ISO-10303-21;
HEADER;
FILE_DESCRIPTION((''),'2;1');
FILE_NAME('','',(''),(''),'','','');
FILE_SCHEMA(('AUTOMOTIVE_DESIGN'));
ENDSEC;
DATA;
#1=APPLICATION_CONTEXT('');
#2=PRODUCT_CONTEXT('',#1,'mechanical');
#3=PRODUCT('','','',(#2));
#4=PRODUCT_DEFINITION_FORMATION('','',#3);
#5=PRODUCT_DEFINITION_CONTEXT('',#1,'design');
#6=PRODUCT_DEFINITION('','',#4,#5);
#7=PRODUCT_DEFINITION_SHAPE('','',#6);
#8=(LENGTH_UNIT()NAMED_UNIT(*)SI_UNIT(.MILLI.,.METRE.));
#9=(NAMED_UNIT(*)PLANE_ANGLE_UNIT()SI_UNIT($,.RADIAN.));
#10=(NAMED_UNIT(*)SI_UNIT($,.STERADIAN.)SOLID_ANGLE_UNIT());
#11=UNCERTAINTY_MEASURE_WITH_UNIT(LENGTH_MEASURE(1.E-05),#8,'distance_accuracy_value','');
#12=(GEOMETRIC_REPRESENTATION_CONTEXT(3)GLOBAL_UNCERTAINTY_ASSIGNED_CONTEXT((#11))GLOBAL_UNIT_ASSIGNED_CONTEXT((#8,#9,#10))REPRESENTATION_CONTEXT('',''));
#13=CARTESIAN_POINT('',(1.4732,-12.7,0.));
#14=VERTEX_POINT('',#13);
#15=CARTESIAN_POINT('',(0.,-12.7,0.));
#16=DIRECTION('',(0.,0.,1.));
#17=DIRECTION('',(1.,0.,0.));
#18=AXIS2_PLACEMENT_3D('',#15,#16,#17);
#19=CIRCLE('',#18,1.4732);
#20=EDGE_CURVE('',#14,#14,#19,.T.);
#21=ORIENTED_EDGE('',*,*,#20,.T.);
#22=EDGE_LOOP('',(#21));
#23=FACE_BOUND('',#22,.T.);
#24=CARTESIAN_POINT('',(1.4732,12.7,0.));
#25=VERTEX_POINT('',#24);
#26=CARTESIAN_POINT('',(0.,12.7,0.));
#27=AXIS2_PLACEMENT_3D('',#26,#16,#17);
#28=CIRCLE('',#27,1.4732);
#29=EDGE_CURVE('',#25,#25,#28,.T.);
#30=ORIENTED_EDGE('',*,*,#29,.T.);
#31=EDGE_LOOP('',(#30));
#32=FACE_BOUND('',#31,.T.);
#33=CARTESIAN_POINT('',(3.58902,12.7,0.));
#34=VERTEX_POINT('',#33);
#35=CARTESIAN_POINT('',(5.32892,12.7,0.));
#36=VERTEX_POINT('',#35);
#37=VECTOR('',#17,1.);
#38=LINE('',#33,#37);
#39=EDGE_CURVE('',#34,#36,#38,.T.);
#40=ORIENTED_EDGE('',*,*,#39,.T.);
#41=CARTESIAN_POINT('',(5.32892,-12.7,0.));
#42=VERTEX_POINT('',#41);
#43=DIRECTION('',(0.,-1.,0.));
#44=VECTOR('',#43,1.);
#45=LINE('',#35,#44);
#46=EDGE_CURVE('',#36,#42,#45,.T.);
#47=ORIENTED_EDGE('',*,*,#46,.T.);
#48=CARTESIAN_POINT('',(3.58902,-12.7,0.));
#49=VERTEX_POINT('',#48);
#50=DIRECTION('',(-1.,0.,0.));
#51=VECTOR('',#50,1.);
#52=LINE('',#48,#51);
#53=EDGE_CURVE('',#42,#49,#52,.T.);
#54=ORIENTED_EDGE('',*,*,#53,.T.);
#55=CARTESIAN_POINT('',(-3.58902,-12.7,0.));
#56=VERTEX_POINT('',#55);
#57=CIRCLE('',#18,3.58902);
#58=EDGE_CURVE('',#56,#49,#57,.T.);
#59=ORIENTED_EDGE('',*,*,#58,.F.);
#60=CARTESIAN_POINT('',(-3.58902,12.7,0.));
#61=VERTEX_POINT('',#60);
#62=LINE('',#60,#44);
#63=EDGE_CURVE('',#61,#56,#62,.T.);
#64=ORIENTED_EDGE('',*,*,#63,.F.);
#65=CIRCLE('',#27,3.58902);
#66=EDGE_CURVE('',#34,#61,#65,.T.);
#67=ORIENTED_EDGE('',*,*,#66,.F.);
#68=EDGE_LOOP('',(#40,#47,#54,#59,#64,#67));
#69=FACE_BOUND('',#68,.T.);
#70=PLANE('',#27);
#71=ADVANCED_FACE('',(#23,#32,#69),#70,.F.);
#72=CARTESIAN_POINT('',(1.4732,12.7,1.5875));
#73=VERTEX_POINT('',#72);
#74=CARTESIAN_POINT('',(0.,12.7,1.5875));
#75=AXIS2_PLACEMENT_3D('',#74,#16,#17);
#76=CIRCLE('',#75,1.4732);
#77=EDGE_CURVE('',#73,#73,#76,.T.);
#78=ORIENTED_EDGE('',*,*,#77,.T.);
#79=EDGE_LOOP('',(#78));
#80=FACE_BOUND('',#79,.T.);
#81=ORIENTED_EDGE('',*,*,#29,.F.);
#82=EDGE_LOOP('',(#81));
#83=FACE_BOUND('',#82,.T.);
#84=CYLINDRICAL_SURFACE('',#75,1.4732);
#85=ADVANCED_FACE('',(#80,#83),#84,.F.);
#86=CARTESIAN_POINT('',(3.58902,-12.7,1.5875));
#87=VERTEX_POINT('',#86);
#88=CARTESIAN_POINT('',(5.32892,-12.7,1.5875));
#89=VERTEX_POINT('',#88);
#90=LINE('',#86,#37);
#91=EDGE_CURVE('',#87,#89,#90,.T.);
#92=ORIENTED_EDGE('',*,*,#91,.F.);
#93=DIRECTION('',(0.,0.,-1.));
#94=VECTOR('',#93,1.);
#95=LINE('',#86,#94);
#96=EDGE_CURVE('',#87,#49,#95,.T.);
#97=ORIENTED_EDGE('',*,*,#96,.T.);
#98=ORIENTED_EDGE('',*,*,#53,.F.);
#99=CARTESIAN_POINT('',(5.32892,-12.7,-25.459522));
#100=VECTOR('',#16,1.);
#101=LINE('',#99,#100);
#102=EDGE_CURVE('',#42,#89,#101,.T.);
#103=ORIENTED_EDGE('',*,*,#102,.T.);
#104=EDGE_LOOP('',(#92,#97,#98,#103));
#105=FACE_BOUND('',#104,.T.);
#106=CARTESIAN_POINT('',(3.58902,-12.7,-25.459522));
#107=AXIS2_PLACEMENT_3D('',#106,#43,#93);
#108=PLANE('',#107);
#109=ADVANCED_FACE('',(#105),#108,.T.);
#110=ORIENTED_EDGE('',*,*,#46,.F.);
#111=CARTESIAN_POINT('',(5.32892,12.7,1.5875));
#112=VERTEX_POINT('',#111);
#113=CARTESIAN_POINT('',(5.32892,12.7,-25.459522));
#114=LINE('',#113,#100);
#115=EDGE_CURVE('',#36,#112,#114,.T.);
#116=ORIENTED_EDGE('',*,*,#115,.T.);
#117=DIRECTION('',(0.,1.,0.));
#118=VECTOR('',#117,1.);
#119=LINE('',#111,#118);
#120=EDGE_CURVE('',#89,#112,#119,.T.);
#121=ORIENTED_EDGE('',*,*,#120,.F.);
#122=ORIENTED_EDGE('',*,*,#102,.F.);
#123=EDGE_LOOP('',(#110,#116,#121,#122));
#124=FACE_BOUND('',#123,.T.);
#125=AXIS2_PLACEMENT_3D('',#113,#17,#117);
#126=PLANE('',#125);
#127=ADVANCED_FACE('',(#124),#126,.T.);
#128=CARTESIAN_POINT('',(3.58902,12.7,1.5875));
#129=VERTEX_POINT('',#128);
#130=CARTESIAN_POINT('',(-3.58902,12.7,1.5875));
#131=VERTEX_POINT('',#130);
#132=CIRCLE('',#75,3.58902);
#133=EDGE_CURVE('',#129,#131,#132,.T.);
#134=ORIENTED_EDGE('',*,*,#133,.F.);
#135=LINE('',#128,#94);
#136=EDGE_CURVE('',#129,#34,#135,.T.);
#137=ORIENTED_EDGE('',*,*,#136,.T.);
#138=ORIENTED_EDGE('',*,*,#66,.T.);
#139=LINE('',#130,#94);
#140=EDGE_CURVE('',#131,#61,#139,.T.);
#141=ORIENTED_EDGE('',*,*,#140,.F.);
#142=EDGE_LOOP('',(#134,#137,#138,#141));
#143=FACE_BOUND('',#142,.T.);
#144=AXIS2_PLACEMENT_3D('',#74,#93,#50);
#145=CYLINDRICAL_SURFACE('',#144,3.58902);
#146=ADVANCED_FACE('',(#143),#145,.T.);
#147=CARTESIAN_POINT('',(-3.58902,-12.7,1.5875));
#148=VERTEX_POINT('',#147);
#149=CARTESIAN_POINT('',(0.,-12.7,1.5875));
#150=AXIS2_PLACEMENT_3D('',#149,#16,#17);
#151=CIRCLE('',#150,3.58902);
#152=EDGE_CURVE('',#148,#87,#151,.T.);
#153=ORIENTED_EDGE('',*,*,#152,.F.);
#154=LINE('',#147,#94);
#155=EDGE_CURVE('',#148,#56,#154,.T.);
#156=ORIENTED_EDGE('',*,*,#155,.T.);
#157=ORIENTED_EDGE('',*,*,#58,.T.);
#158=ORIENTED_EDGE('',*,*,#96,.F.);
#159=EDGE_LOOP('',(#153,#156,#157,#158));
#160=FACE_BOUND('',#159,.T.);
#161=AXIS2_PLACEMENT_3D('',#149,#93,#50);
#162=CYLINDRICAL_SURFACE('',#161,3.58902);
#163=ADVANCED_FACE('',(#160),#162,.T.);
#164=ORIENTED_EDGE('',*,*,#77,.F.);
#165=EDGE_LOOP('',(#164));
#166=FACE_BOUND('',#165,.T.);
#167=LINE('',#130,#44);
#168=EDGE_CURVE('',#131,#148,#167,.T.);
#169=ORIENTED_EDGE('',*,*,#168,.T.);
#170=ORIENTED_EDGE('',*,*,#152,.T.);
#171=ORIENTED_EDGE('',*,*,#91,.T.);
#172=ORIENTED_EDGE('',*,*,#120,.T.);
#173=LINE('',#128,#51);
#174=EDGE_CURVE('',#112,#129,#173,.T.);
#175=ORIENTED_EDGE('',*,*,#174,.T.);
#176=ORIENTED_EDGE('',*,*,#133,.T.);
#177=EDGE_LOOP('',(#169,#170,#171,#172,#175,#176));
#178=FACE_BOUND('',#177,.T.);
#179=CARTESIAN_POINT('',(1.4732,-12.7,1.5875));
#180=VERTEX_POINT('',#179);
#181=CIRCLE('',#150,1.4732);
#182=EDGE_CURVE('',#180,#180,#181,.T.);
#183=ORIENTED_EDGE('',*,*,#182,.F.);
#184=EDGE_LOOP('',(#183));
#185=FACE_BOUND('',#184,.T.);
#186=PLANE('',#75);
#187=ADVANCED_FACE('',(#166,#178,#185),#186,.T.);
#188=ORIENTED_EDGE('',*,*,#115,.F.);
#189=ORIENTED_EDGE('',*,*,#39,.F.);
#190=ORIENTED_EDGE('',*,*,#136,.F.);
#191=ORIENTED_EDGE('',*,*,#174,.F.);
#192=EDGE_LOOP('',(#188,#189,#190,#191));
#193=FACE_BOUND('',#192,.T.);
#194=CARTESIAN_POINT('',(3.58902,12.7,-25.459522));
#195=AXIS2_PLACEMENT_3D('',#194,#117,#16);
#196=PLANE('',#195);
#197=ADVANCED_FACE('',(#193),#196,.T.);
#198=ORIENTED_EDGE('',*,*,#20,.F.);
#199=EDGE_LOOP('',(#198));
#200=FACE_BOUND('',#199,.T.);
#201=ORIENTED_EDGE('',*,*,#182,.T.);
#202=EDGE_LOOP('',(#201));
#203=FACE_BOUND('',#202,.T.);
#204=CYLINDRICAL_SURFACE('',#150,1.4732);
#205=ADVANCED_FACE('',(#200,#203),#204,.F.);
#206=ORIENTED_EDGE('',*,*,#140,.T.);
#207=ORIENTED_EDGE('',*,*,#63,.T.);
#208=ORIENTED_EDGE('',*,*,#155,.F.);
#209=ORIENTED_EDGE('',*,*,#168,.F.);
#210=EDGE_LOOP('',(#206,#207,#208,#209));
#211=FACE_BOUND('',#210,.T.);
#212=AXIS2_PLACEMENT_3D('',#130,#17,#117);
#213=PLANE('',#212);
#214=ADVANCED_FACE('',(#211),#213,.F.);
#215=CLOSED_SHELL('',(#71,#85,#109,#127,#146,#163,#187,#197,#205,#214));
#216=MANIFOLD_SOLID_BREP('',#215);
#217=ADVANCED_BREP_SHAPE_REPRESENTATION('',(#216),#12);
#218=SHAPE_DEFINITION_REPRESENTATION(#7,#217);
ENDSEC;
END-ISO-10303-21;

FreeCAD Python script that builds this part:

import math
import FreeCAD as App
import Part
import Sketcher

V = App.Vector
Q = App.Units.Quantity

doc = App.newDocument("Part")
body = doc.addObject("PartDesign::Body", "Body")

# Sketch on XY plane
sketch1 = body.newObject("Sketcher::SketchObject", "Sketch")
sketch1.AttachmentSupport = (doc.getObject("XY_Plane"), [""])
sketch1.MapMode = "FlatFace"
sketch1.addGeometry([
    Part.LineSegment(V(3.6, -12.7, 0), V(3.6, 12.7, 0)),
    Part.ArcOfCircle(Part.Circle(V(0, 12.7, 0), V(0, 0, 1), 3.6), math.radians(0), math.radians(180)),
    Part.LineSegment(V(-3.6, 12.7, 0), V(-3.6, -12.7, 0)),
    Part.ArcOfCircle(Part.Circle(V(0, -12.7, 0), V(0, 0, 1), 3.6), math.radians(180), math.radians(360)),
], False)
sketch1.addConstraint([
    Sketcher.Constraint("Tangent", 0, 2, 1, 1),
    Sketcher.Constraint("Tangent", 1, 2, 2, 1),
    Sketcher.Constraint("Tangent", 2, 2, 3, 1),
    Sketcher.Constraint("Tangent", 3, 2, 0, 1),
    Sketcher.Constraint("Vertical", 0),
    Sketcher.Constraint("Vertical", 2),
    Sketcher.Constraint("Symmetric", 1, 3, 3, 3, -1, 1),
    Sketcher.Constraint("DistanceY", 0, 1, 0, 2, Q("1 in")),
    Sketcher.Constraint("Radius", 1, Q("0.1413 in")),
])
pad1 = body.newObject("PartDesign::Pad", "Pad")
pad1.Profile = sketch1
pad1.Length = Q("0.0625 in")

# Sketch on XY plane
sketch2 = body.newObject("Sketcher::SketchObject", "Sketch001")
sketch2.AttachmentSupport = (doc.getObject("XY_Plane"), [""])
sketch2.MapMode = "FlatFace"
sketch2.AttachmentOffset = App.Placement(V(0, 0, 0.0625 * 25.4), App.Rotation())
sketch2.addGeometry([
    Part.Circle(V(0, 12.7, 0), V(0, 0, 1), 1.5),
    Part.Circle(V(0, -12.7, 0), V(0, 0, 1), 1.5),
], False)
sketch2.addConstraint([
    Sketcher.Constraint("Equal", 0, 1),
    Sketcher.Constraint("Symmetric", 0, 3, 1, 3, -1, 1),
    Sketcher.Constraint("PointOnObject", 0, 3, -2),
    Sketcher.Constraint("Diameter", 0, Q("0.116 in")),
    Sketcher.Constraint("DistanceY", 1, 3, 0, 3, Q("1 in")),
])
doc.recompute()
hole = body.newObject("PartDesign::Hole", "Hole")
hole.Profile = sketch2
hole.ThreadType = "None"
hole.Diameter = Q("0.116 in")
hole.DepthType = "Dimension"
hole.Depth = Q("0.13 in")
hole.DrillPoint = "Angled"
hole.DrillPointAngle = 118

# Sketch on XY plane
sketch3 = body.newObject("Sketcher::SketchObject", "Sketch002")
sketch3.AttachmentSupport = (doc.getObject("XY_Plane"), [""])
sketch3.MapMode = "FlatFace"
sketch3.AttachmentOffset = App.Placement(V(0, 0, 0.0625 * 25.4), App.Rotation())
sketch3.addGeometry([
    Part.LineSegment(V(3.6, 12.7, 0), V(3.6, -12.7, 0)),
    Part.LineSegment(V(3.6, -12.7, 0), V(5.3, -12.7, 0)),
    Part.LineSegment(V(5.3, -12.7, 0), V(5.3, 12.7, 0)),
    Part.LineSegment(V(5.3, 12.7, 0), V(3.6, 12.7, 0)),
], False)
sketch3.addConstraint([
    Sketcher.Constraint("Coincident", 0, 2, 1, 1),
    Sketcher.Constraint("Coincident", 1, 2, 2, 1),
    Sketcher.Constraint("Coincident", 2, 2, 3, 1),
    Sketcher.Constraint("Coincident", 3, 2, 0, 1),
    Sketcher.Constraint("Vertical", 0),
    Sketcher.Constraint("Horizontal", 1),
    Sketcher.Constraint("Vertical", 2),
    Sketcher.Constraint("Horizontal", 3),
    Sketcher.Constraint("DistanceY", 0, 2, 0, 1, Q("1 in")),
    Sketcher.Constraint("DistanceY", 0, 2, -1, 1, Q("0.5 in")),
    Sketcher.Constraint("DistanceX", 1, 1, 1, 2, Q("0.0685 in")),
    Sketcher.Constraint("DistanceX", -1, 1, 0, 2, Q("0.1413 in")),
])
pad2 = body.newObject("PartDesign::Pad", "Pad001")
pad2.Profile = sketch3
pad2.Length = Q("0.0625 in")
pad2.Reversed = True

doc.recompute()
